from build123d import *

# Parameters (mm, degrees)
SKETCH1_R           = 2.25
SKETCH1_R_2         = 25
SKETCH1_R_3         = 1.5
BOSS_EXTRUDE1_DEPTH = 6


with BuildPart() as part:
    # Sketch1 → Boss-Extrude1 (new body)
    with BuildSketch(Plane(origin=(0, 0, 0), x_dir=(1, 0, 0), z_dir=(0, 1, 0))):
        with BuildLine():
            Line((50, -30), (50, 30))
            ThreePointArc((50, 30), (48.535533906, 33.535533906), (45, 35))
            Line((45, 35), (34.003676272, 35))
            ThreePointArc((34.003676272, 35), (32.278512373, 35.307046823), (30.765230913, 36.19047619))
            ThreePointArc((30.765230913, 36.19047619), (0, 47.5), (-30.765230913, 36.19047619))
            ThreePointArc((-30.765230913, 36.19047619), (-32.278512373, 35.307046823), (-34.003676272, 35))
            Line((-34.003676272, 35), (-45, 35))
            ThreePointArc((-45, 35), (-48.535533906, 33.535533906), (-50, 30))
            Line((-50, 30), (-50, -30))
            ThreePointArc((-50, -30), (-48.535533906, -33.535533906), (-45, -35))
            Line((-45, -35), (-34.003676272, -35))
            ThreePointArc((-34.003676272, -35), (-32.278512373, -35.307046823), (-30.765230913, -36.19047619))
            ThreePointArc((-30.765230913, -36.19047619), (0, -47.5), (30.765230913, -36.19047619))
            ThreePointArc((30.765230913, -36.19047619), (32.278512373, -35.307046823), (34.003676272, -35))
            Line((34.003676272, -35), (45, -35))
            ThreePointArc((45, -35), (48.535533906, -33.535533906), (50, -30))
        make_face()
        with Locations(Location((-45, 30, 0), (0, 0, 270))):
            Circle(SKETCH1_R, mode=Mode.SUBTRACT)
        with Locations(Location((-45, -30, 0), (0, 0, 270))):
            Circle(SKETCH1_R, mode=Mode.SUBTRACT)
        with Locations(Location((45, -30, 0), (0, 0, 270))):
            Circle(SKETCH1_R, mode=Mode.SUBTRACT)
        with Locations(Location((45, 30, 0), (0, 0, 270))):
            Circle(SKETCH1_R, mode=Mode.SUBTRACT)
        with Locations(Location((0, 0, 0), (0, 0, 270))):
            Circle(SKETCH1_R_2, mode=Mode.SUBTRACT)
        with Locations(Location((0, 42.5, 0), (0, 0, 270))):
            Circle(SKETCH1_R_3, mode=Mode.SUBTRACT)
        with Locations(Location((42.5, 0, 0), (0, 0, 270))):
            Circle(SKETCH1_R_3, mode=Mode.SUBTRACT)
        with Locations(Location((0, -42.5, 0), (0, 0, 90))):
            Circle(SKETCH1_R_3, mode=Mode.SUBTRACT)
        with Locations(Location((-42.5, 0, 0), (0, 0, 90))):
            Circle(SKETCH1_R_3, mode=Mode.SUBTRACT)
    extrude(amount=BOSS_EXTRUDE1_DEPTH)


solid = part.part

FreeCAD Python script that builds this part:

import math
import FreeCAD as App
import Part
import Sketcher

V = App.Vector
Q = App.Units.Quantity

doc = App.newDocument("Part")
body = doc.addObject("PartDesign::Body", "Body")

sketch1 = doc.addObject("Sketcher::SketchObject", "Sketch")
body.addObject(sketch1)
sketch1.AttachmentSupport = (doc.XZ_Plane, [""])
sketch1.MapMode = "FlatFace"
sketch1.addGeometry([
    Part.LineSegment(V(50, 30, 0), V(50, -30, 0)),
    Part.ArcOfCircle(Part.Circle(V(45, -30, 0), V(0, 0, 1), 5), math.radians(-90), math.radians(0)),
    Part.LineSegment(V(45, -35, 0), V(34, -35, 0)),
    Part.ArcOfCircle(Part.Circle(V(34, -40, 0), V(0, 0, 1), 5), math.radians(90), math.radians(130)),
    Part.ArcOfCircle(Part.Circle(V(0, 0, 0), V(0, 0, 1), 47.5), math.radians(-130), math.radians(-50)),
    Part.ArcOfCircle(Part.Circle(V(-34, -40, 0), V(0, 0, 1), 5), math.radians(50), math.radians(90)),
    Part.LineSegment(V(-34, -35, 0), V(-45, -35, 0)),
    Part.ArcOfCircle(Part.Circle(V(-45, -30, 0), V(0, 0, 1), 5), math.radians(180), math.radians(270)),
    Part.LineSegment(V(-50, -30, 0), V(-50, 30, 0)),
    Part.ArcOfCircle(Part.Circle(V(-45, 30, 0), V(0, 0, 1), 5), math.radians(90), math.radians(180)),
    Part.LineSegment(V(-45, 35, 0), V(-34, 35, 0)),
    Part.ArcOfCircle(Part.Circle(V(-34, 40, 0), V(0, 0, 1), 5), math.radians(-90), math.radians(-50)),
    Part.ArcOfCircle(Part.Circle(V(0, 0, 0), V(0, 0, 1), 47.5), math.radians(50), math.radians(130)),
    Part.ArcOfCircle(Part.Circle(V(34, 40, 0), V(0, 0, 1), 5), math.radians(-130), math.radians(-90)),
    Part.LineSegment(V(34, 35, 0), V(45, 35, 0)),
    Part.ArcOfCircle(Part.Circle(V(45, 30, 0), V(0, 0, 1), 5), math.radians(0), math.radians(90)),
    Part.Circle(V(-45, 30, 0), V(0, 0, 1), 2.2),
    Part.Circle(V(0, 42.5, 0), V(0, 0, 1), 1.5),
    Part.Circle(V(45, 30, 0), V(0, 0, 1), 2.2),
    Part.Circle(V(-42.5, 0, 0), V(0, 0, 1), 1.5),
    Part.Circle(V(-45, -30, 0), V(0, 0, 1), 2.2),
    Part.Circle(V(0, 0, 0), V(0, 0, 1), 25),
    Part.Circle(V(42.5, 0, 0), V(0, 0, 1), 1.5),
    Part.Circle(V(0, -42.5, 0), V(0, 0, 1), 1.5),
    Part.Circle(V(45, -30, 0), V(0, 0, 1), 2.2),
], False)
sketch1.addConstraint([
    Sketcher.Constraint("Tangent", 0, 2, 1, 2),
    Sketcher.Constraint("Tangent", 1, 1, 2, 1),
    Sketcher.Constraint("Tangent", 2, 2, 3, 1),
    Sketcher.Constraint("Tangent", 3, 2, 4, 2),
    Sketcher.Constraint("Tangent", 4, 1, 5, 1),
    Sketcher.Constraint("Tangent", 5, 2, 6, 1),
    Sketcher.Constraint("Tangent", 6, 2, 7, 2),
    Sketcher.Constraint("Tangent", 7, 1, 8, 1),
    Sketcher.Constraint("Tangent", 8, 2, 9, 2),
    Sketcher.Constraint("Tangent", 9, 1, 10, 1),
    Sketcher.Constraint("Tangent", 10, 2, 11, 1),
    Sketcher.Constraint("Tangent", 11, 2, 12, 2),
    Sketcher.Constraint("Tangent", 12, 1, 13, 1),
    Sketcher.Constraint("Tangent", 13, 2, 14, 1),
    Sketcher.Constraint("Tangent", 14, 2, 15, 2),
    Sketcher.Constraint("Tangent", 15, 1, 0, 1),
    Sketcher.Constraint("Vertical", 0),
    Sketcher.Constraint("Horizontal", 2),
    Sketcher.Constraint("Horizontal", 6),
    Sketcher.Constraint("Vertical", 8),
    Sketcher.Constraint("Horizontal", 10),
    Sketcher.Constraint("Horizontal", 14),
    Sketcher.Constraint("Coincident", 4, 3, -1, 1),
    Sketcher.Constraint("Coincident", 12, 3, -1, 1),
    Sketcher.Constraint("Coincident", 21, 3, -1, 1),
    Sketcher.Constraint("Coincident", 16, 3, 9, 3),
    Sketcher.Constraint("Coincident", 18, 3, 15, 3),
    Sketcher.Constraint("Coincident", 20, 3, 7, 3),
    Sketcher.Constraint("Coincident", 24, 3, 1, 3),
    Sketcher.Constraint("Equal", 1, 3),
    Sketcher.Constraint("Equal", 3, 5),
    Sketcher.Constraint("Equal", 5, 7),
    Sketcher.Constraint("Equal", 7, 9),
    Sketcher.Constraint("Equal", 9, 11),
    Sketcher.Constraint("Equal", 4, 12),
    Sketcher.Constraint("Equal", 11, 13),
    Sketcher.Constraint("Equal", 13, 15),
    Sketcher.Constraint("Equal", 16, 18),
    Sketcher.Constraint("Equal", 17, 19),
    Sketcher.Constraint("Equal", 18, 20),
    Sketcher.Constraint("Equal", 19, 22),
    Sketcher.Constraint("Equal", 22, 23),
    Sketcher.Constraint("Equal", 20, 24),
    Sketcher.Constraint("Symmetric", 1, 3, 9, 3, -1, 1),
    Sketcher.Constraint("Symmetric", 19, 3, 22, 3, -1, 1),
    Sketcher.Constraint("Symmetric", 17, 3, 23, 3, -1, 1),
    Sketcher.Constraint("PointOnObject", 17, 3, -2),
    Sketcher.Constraint("PointOnObject", 19, 3, -1),
    Sketcher.Constraint("Horizontal", 3, 3, 5, 3),
    Sketcher.Constraint("Horizontal", 11, 3, 13, 3),
    Sketcher.Constraint("Diameter", 17, Q("3 mm")),
    Sketcher.Constraint("Diameter", 21, Q("50 mm")),
    Sketcher.Constraint("Radius", 1, Q("5 mm")),
    Sketcher.Constraint("Diameter", 16, Q("4.5 mm")),
    Sketcher.Constraint("Radius", 4, Q("47.5 mm")),
    Sketcher.Constraint("DistanceY", 0, 2, 0, 1, Q("60 mm")),
    Sketcher.Constraint("DistanceX", -1, 1, 1, 3, Q("45 mm")),
    Sketcher.Constraint("DistanceY", -1, 1, 17, 3, Q("42.5 mm")),
    Sketcher.Constraint("DistanceX", 19, 3, -1, 1, Q("42.5 mm")),
])
pad1 = doc.addObject("PartDesign::Pad", "Pad")
body.addObject(pad1)
pad1.Profile = sketch1
pad1.Length = 6
pad1.Reversed = True

doc.recompute()
